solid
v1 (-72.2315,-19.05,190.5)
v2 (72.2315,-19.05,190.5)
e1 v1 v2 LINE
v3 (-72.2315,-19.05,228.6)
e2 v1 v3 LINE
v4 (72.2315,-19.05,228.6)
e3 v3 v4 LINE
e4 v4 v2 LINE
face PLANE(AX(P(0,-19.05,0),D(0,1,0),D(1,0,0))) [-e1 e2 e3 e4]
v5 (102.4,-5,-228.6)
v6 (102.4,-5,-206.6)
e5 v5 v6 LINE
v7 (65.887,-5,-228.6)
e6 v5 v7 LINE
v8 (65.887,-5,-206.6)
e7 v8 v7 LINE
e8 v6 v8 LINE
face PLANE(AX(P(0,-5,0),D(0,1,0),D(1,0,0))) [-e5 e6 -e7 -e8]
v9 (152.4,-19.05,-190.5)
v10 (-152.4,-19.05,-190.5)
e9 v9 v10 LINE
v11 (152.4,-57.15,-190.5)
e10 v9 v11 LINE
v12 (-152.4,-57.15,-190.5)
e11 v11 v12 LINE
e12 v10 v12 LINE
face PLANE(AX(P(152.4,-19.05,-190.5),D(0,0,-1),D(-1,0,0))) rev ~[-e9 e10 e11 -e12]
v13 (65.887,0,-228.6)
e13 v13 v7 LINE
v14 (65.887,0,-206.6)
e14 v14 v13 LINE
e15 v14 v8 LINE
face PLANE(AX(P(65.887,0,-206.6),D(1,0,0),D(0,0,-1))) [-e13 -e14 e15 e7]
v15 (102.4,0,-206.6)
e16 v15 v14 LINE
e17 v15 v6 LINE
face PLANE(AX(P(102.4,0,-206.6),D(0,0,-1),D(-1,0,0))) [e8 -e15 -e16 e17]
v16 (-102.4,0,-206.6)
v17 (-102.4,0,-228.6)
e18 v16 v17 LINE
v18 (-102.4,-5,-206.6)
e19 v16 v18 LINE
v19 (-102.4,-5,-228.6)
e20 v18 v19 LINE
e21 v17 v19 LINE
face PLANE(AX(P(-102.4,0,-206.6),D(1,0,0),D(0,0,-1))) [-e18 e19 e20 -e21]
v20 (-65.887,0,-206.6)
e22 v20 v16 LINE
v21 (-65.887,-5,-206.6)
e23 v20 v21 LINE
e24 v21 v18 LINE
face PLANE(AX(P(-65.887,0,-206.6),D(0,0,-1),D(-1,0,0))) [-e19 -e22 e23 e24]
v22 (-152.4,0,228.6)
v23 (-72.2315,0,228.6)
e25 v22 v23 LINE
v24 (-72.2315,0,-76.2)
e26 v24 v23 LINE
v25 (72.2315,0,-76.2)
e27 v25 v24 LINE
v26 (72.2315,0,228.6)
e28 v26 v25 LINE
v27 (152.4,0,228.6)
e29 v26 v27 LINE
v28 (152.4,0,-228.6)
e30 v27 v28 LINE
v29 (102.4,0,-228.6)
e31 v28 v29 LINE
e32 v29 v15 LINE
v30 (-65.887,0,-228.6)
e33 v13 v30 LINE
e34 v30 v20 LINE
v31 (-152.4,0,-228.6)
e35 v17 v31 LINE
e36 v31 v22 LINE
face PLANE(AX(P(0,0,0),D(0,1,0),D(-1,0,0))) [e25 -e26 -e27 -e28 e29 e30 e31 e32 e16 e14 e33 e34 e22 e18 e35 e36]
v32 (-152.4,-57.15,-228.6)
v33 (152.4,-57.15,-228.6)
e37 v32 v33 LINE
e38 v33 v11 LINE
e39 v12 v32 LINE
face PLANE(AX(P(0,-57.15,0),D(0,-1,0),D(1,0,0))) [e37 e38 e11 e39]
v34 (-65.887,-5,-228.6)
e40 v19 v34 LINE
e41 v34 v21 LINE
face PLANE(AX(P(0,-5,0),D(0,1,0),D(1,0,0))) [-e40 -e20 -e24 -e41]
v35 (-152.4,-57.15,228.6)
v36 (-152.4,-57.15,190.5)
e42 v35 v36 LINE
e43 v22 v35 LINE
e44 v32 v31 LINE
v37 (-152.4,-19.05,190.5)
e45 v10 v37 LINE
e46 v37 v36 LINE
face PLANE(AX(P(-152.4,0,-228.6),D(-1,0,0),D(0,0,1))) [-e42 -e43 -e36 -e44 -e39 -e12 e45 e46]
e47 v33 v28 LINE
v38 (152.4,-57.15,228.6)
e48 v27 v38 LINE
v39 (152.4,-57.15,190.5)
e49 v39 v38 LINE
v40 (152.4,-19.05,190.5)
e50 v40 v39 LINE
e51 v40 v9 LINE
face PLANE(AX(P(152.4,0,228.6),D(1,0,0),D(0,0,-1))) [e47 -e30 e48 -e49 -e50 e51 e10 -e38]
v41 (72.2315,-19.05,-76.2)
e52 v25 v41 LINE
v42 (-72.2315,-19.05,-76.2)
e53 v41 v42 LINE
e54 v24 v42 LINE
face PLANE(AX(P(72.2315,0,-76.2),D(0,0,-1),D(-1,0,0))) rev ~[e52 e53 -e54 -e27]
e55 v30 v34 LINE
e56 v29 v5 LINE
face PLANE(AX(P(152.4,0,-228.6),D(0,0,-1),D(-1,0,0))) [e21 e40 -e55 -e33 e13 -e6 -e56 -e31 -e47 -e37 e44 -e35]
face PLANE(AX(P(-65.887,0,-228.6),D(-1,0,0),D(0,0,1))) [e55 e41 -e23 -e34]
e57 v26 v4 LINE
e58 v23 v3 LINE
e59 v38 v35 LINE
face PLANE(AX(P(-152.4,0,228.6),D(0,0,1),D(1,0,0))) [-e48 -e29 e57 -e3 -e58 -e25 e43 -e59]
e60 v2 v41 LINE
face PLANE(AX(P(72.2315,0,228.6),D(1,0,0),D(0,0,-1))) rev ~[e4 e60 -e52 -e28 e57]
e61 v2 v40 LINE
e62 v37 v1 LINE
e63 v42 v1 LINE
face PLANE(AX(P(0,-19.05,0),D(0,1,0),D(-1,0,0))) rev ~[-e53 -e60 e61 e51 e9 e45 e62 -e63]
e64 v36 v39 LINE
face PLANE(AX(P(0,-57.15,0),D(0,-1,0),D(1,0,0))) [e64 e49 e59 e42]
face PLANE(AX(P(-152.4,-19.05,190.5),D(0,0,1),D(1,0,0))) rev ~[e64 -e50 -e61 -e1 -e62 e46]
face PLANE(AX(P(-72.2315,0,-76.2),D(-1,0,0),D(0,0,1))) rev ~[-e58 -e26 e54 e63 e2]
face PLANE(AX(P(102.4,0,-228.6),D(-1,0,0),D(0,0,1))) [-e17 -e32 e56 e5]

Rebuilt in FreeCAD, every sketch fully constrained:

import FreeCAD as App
import Part
import Sketcher

V = App.Vector
Q = App.Units.Quantity


def add_polygon(sketch, points):
    """Adds a closed chain of lines whose ends are joined by coincident constraints."""
    first, n = sketch.GeometryCount, len(points)
    for a, b in zip(points, points[1:] + points[:1]):
        sketch.addGeometry(Part.LineSegment(App.Vector(*a, 0), App.Vector(*b, 0)), False)
    for i in range(n):
        sketch.addConstraint(Sketcher.Constraint("Coincident", first + i, 2, first + (i + 1) % n, 1))

doc = App.newDocument("Part")
params = doc.addObject("Spreadsheet::Sheet", "Params")
for row, (alias, value) in enumerate([
    ("sketch1_width", "12 in"),
    ("sketch1_height", "18 in"),
    ("pad1_length", "0.75 in"),
    ("sketch2_height", "1.5 in"),
    ("sketch2_width", "12 in"),
    ("pad2_length", "1.5 in"),
    ("sketch3_height", "12 in"),
    ("pocket1_length", "0.75 in"),
    ("pocket2_length", "5 mm"),
], start=1):
    params.set(f"A{row}", alias)
    params.set(f"B{row}", "=" + value)
    params.setAlias(f"B{row}", alias)

body = doc.addObject("PartDesign::Body", "Body")

# Sketch on XZ plane
sketch1 = body.newObject("Sketcher::SketchObject", "Sketch")
sketch1.AttachmentSupport = (doc.getObject("XZ_Plane"), [""])
sketch1.MapMode = "FlatFace"
add_polygon(sketch1, [(152.4, 228.6), (152.4, -228.6), (-152.4, -228.6), (-152.4, 228.6)])  # lines 0-3
sketch1.addConstraint([
    Sketcher.Constraint("Vertical", 0),
    Sketcher.Constraint("Horizontal", 1),
    Sketcher.Constraint("Vertical", 2),
    Sketcher.Constraint("Horizontal", 3),
    Sketcher.Constraint("Symmetric", 0, 2, 2, 2, -1, 1),
    Sketcher.Constraint("DistanceX", 1, 2, 1, 1, Q("12 in")),
    Sketcher.Constraint("DistanceY", 0, 2, 0, 1, Q("18 in")),
])
sketch1.setExpression("Constraints[9]", "Params.sketch1_width")
sketch1.setExpression("Constraints[10]", "Params.sketch1_height")
pad1 = body.newObject("PartDesign::Pad", "Pad")
pad1.Profile = sketch1
pad1.setExpression("Length", "Params.pad1_length")

# Sketch on XZ plane
sketch2 = body.newObject("Sketcher::SketchObject", "Sketch001")
sketch2.AttachmentSupport = (doc.getObject("XZ_Plane"), [""])
sketch2.MapMode = "FlatFace"
sketch2.AttachmentOffset = App.Placement(V(0, 0, 0.75 * 25.4), App.Rotation())
add_polygon(sketch2, [(-152.4, -228.6), (152.4, -228.6), (152.4, -190.5), (-152.4, -190.5)])  # lines 0-3
add_polygon(sketch2, [(-152.4, 190.5), (152.4, 190.5), (152.4, 228.6), (-152.4, 228.6)])  # lines 4-7
sketch2.addConstraint([
    Sketcher.Constraint("Horizontal", 0),
    Sketcher.Constraint("Vertical", 1),
    Sketcher.Constraint("Horizontal", 2),
    Sketcher.Constraint("Vertical", 3),
    Sketcher.Constraint("Horizontal", 4),
    Sketcher.Constraint("Vertical", 5),
    Sketcher.Constraint("Horizontal", 6),
    Sketcher.Constraint("Vertical", 7),
    Sketcher.Constraint("Symmetric", 2, 2, 4, 2, -1, 1),
    Sketcher.Constraint("Symmetric", 0, 2, 6, 2, -1, 1),
    Sketcher.Constraint("Vertical", 1, 2, 4, 2),
    Sketcher.Constraint("DistanceY", 1, 1, 1, 2, Q("1.5 in")),
    Sketcher.Constraint("DistanceX", 0, 1, 0, 2, Q("12 in")),
    Sketcher.Constraint("DistanceY", 0, 2, -1, 1, Q("9 in")),
])
sketch2.setExpression("Constraints[19]", "Params.sketch2_height")
sketch2.setExpression("Constraints[20]", "Params.sketch2_width")
pad2 = body.newObject("PartDesign::Pad", "Pad001")
pad2.Profile = sketch2
pad2.setExpression("Length", "Params.pad2_length")

# Sketch on XZ plane
sketch3 = body.newObject("Sketcher::SketchObject", "Sketch002")
sketch3.AttachmentSupport = (doc.getObject("XZ_Plane"), [""])
sketch3.MapMode = "FlatFace"
add_polygon(sketch3, [(-72.2315, -76.2), (-72.2315, 228.6), (72.2315, 228.6), (72.2315, -76.2)])  # lines 0-3
sketch3.addConstraint([
    Sketcher.Constraint("Vertical", 0),
    Sketcher.Constraint("Horizontal", 1),
    Sketcher.Constraint("Vertical", 2),
    Sketcher.Constraint("Horizontal", 3),
    Sketcher.Constraint("DistanceY", 0, 1, 0, 2, Q("12 in")),
    Sketcher.Constraint("DistanceY", -1, 1, 0, 2, Q("9 in")),
    Sketcher.Constraint("DistanceX", 1, 1, 1, 2, Q("144.463 mm")),
    Sketcher.Constraint("DistanceX", 0, 2, -1, 1, Q("72.2315 mm")),
])
sketch3.setExpression("Constraints[8]", "Params.sketch3_height")
pocket1 = body.newObject("PartDesign::Pocket", "Pocket")
pocket1.Profile = sketch3
pocket1.setExpression("Length", "Params.pocket1_length")
pocket1.Reversed = True

# Sketch on XZ plane
sketch4 = body.newObject("Sketcher::SketchObject", "Sketch003")
sketch4.AttachmentSupport = (doc.getObject("XZ_Plane"), [""])
sketch4.MapMode = "FlatFace"
add_polygon(sketch4, [(102.4, -228.6), (65.887, -228.6), (65.887, -206.6), (102.4, -206.6)])  # lines 0-3
add_polygon(sketch4, [(-65.887, -228.6), (-102.4, -228.6), (-102.4, -206.6), (-65.887, -206.6)])  # lines 4-7
sketch4.addConstraint([
    Sketcher.Constraint("Horizontal", 0),
    Sketcher.Constraint("Vertical", 1),
    Sketcher.Constraint("Horizontal", 2),
    Sketcher.Constraint("Vertical", 3),
    Sketcher.Constraint("Horizontal", 4),
    Sketcher.Constraint("Vertical", 5),
    Sketcher.Constraint("Horizontal", 6),
    Sketcher.Constraint("Vertical", 7),
    Sketcher.Constraint("Symmetric", 3, 2, 4, 2, -2),
    Sketcher.Constraint("Symmetric", 1, 2, 6, 2, -2),
    Sketcher.Constraint("DistanceY", 0, 2, -1, 1, Q("9 in")),
    Sketcher.Constraint("DistanceX", 0, 2, 0, 1, Q("36.513 mm")),
    Sketcher.Constraint("DistanceY", 1, 1, 1, 2, Q("22 mm")),
    Sketcher.Constraint("DistanceX", 4, 2, 3, 2, Q("8.063 in")),
])
pocket2 = body.newObject("PartDesign::Pocket", "Pocket001")
pocket2.Profile = sketch4
pocket2.setExpression("Length", "Params.pocket2_length")
pocket2.Reversed = True

doc.recompute()
